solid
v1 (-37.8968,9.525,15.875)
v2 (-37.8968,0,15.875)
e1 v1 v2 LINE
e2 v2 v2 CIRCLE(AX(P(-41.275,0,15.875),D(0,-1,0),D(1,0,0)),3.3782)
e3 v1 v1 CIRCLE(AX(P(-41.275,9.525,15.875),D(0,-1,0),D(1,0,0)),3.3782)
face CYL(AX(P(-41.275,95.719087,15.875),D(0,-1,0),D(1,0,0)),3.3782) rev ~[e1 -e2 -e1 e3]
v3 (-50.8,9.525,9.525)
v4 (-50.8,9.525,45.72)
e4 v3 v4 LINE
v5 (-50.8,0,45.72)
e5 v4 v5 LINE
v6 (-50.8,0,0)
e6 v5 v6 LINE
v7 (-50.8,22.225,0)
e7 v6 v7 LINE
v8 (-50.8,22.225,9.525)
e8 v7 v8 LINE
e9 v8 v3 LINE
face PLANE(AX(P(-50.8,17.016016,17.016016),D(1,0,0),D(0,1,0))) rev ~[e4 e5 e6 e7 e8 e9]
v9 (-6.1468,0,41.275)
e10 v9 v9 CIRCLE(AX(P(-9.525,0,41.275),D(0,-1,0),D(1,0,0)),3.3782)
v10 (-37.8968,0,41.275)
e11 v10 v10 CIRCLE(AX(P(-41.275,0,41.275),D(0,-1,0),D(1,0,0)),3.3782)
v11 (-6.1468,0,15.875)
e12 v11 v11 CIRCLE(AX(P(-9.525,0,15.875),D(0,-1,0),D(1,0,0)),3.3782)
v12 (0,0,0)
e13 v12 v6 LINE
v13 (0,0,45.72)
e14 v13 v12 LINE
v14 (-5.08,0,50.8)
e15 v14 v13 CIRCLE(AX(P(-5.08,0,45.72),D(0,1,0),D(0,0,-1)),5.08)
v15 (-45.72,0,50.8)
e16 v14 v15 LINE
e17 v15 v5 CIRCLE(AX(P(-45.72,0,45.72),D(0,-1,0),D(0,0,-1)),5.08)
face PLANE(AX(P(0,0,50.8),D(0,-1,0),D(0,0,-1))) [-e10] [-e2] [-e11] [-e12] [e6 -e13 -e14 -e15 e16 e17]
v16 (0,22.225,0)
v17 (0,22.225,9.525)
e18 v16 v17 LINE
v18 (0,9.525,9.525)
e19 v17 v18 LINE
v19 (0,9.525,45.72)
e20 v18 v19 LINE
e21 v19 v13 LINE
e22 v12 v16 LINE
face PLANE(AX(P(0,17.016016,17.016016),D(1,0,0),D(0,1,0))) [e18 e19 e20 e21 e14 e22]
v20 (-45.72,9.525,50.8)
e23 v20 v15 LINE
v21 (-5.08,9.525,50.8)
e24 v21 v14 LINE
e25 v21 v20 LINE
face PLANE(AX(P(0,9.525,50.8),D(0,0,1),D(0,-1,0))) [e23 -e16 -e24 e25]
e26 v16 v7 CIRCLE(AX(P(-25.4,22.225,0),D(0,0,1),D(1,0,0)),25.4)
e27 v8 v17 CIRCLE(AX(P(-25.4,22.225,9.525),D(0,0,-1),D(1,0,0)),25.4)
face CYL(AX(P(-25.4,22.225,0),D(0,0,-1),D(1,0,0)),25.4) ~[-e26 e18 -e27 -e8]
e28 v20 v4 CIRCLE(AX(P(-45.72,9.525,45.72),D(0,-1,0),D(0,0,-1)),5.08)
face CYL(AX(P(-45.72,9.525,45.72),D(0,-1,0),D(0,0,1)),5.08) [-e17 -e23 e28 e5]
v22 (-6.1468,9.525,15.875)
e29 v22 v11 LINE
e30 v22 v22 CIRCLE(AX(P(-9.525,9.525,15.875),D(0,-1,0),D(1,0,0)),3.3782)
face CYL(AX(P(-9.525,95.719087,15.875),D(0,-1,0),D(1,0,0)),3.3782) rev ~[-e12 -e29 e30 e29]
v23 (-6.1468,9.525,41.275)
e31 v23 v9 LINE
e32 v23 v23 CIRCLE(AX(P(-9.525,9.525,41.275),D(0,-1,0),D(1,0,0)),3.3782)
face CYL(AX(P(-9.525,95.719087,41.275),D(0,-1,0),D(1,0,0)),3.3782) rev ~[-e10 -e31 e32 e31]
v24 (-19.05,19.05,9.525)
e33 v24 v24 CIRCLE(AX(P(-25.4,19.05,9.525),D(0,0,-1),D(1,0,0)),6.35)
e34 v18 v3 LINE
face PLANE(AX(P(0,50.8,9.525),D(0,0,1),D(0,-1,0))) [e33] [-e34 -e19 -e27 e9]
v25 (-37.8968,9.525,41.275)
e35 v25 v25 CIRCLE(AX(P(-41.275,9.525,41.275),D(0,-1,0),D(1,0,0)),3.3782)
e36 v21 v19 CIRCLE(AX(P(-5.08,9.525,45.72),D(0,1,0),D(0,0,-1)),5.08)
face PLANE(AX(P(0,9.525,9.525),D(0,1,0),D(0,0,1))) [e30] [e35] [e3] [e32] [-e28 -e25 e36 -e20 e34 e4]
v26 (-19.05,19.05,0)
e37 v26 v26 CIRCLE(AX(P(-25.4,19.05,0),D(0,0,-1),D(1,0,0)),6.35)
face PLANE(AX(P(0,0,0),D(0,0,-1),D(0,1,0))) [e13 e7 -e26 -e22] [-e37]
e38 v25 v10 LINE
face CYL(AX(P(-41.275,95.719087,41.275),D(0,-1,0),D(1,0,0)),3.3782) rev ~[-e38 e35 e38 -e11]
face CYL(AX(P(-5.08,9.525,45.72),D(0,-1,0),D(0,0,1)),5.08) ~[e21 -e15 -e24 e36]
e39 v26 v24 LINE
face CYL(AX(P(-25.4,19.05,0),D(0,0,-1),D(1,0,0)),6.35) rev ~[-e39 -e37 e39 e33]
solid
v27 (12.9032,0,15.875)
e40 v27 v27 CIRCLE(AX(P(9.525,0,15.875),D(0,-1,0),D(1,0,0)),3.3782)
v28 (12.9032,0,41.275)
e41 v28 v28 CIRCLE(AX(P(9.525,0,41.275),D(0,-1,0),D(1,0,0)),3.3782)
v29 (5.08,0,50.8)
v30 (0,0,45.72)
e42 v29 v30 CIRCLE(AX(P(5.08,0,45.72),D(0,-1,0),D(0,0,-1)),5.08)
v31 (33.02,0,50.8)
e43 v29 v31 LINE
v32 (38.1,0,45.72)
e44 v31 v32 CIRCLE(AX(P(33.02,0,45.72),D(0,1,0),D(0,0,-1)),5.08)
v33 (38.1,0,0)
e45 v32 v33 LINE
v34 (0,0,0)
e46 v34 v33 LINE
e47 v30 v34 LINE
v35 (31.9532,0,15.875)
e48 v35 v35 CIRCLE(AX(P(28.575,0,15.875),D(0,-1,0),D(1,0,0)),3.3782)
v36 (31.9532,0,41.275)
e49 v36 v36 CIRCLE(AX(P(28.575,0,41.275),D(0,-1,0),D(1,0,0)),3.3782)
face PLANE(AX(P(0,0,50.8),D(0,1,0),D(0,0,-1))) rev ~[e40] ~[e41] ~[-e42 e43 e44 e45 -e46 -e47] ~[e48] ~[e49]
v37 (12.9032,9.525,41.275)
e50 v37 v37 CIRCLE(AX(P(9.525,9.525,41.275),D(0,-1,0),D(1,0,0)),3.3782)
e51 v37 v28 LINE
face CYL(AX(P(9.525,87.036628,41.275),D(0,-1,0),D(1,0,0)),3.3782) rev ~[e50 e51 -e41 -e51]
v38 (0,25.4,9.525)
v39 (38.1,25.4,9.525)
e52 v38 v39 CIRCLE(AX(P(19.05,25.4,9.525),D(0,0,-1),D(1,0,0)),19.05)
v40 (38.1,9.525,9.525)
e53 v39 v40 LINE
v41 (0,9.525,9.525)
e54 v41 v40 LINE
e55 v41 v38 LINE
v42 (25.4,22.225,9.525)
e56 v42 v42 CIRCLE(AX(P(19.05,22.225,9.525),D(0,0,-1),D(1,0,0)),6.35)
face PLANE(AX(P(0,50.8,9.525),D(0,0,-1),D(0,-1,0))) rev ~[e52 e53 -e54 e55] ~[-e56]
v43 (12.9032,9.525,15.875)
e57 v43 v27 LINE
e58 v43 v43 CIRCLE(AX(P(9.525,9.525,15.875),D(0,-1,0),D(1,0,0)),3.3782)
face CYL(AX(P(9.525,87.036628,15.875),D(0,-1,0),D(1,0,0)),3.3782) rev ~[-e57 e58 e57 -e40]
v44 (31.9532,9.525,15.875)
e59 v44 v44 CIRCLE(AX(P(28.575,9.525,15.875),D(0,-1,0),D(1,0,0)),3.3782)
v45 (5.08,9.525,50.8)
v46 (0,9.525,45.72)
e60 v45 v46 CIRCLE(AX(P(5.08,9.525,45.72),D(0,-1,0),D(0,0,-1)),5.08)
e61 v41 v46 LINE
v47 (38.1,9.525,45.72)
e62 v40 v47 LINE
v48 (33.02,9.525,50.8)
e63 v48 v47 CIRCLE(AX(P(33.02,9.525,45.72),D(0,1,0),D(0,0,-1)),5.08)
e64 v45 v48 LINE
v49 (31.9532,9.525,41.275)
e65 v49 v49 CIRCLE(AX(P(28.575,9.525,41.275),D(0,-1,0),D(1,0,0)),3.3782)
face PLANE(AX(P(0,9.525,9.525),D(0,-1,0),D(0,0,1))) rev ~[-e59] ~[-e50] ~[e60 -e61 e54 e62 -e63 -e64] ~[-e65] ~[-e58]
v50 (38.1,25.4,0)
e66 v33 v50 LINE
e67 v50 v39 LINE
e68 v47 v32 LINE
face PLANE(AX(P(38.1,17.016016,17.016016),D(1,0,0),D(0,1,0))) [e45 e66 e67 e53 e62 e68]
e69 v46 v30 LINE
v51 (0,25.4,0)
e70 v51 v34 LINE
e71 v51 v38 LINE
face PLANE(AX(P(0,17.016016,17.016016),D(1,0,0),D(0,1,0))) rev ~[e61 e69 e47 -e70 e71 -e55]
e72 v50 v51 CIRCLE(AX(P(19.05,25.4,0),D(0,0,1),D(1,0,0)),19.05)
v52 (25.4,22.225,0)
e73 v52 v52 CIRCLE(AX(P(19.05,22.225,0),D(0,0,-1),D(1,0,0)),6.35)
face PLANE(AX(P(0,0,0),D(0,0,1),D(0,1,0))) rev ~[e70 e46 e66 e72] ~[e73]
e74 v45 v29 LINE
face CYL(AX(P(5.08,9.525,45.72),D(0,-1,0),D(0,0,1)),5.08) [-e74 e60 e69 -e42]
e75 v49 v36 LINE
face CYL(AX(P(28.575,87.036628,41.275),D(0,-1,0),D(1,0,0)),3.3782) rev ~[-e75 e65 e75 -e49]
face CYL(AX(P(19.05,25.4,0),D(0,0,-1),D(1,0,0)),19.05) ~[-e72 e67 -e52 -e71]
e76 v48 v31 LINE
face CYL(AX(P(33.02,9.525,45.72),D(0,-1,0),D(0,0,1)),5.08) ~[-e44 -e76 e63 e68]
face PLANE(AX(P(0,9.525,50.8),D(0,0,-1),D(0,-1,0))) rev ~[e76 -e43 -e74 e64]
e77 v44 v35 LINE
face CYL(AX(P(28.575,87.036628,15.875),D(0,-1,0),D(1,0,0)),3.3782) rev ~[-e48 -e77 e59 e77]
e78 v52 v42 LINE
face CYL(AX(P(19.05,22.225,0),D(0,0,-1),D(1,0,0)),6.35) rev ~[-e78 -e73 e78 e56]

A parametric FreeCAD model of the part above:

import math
import FreeCAD as App
import Part
import Sketcher
Q = App.Units.Quantity


def edges_at(feature, points):
    """Names of the edges that pass closest to the given points."""
    edges = feature.Shape.Edges
    near = lambda p: min(range(len(edges)), key=lambda i: edges[i].distToShape(Part.Vertex(*p))[0])
    return sorted({f"Edge{near(p) + 1}" for p in points})


def add_polygon(sketch, points):
    """Adds a closed chain of lines whose ends are joined by coincident constraints."""
    first, n = sketch.GeometryCount, len(points)
    for a, b in zip(points, points[1:] + points[:1]):
        sketch.addGeometry(Part.LineSegment(App.Vector(*a, 0), App.Vector(*b, 0)), False)
    for i in range(n):
        sketch.addConstraint(Sketcher.Constraint("Coincident", first + i, 2, first + (i + 1) % n, 1))

doc = App.newDocument("Part")
params = doc.addObject("Spreadsheet::Sheet", "Params")
for row, (alias, value) in enumerate([
    ("sketch1_width", "2 in"),
    ("sketch1_width2", "0.375 in"),
    ("pad1_length", "1.5 in"),
    ("sketch2_width", "2 in"),
    ("sketch2_width2", "0.375 in"),
    ("pad2_length", "2 in"),
    ("sketch3_radius", "1 in"),
    ("sketch3_diameter", "0.5 in"),
    ("sketch3_height", "1 in"),
    ("sketch3_radius2", "0.75 in"),
    ("sketch3_height2", "0.125 in"),
    ("pad3_length", "1 in"),
    ("sketch4_diameter", "0.266 in"),
    ("hole_diameter", "0.266 in"),
    ("fillet_radius", "0.2 in"),
    ("sketch5_diameter", "0.266 in"),
    ("hole2_diameter", "0.266 in"),
    ("fillet2_radius", "0.2 in"),
], start=1):
    params.set(f"A{row}", alias)
    params.set(f"B{row}", "=" + value)
    params.setAlias(f"B{row}", alias)

body = doc.addObject("PartDesign::Body", "Body")

# Sketch on YZ plane
sketch1 = body.newObject("Sketcher::SketchObject", "Sketch")
sketch1.AttachmentSupport = (doc.getObject("YZ_Plane"), [""])
sketch1.MapMode = "FlatFace"
add_polygon(sketch1, [(10, 51), (0, 51), (0, 0), (51, 0), (51, 10), (10, 10)])  # lines 0-5
sketch1.addConstraint([
    Sketcher.Constraint("Horizontal", 0),
    Sketcher.Constraint("Vertical", 1),
    Sketcher.Constraint("Horizontal", 2),
    Sketcher.Constraint("Vertical", 3),
    Sketcher.Constraint("Horizontal", 4),
    Sketcher.Constraint("Vertical", 5),
    Sketcher.Constraint("Coincident", 1, 2, -1, 1),
    Sketcher.Constraint("Equal", 2, 1),
    Sketcher.Constraint("Equal", 0, 3),
    Sketcher.Constraint("DistanceX", 2, 1, 2, 2, Q("2 in")),
    Sketcher.Constraint("DistanceX", 0, 2, 0, 1, Q("0.375 in")),
])
sketch1.setExpression("Constraints[15]", "Params.sketch1_width")
sketch1.setExpression("Constraints[16]", "Params.sketch1_width2")
pad1 = body.newObject("PartDesign::Pad", "Pad")
pad1.Profile = sketch1
pad1.setExpression("Length", "Params.pad1_length")
body2 = doc.addObject("PartDesign::Body", "Body001")

# Sketch on YZ plane
sketch2 = body2.newObject("Sketcher::SketchObject", "Sketch001")
sketch2.AttachmentSupport = (doc.getObject("YZ_Plane001"), [""])
sketch2.MapMode = "FlatFace"
add_polygon(sketch2, [(10, 51), (0, 51), (0, 0), (51, 0), (51, 10), (10, 10)])  # lines 0-5
sketch2.addConstraint([
    Sketcher.Constraint("Horizontal", 0),
    Sketcher.Constraint("Vertical", 1),
    Sketcher.Constraint("Horizontal", 2),
    Sketcher.Constraint("Vertical", 3),
    Sketcher.Constraint("Horizontal", 4),
    Sketcher.Constraint("Vertical", 5),
    Sketcher.Constraint("Coincident", 1, 2, -1, 1),
    Sketcher.Constraint("Equal", 2, 1),
    Sketcher.Constraint("Equal", 0, 3),
    Sketcher.Constraint("DistanceX", 2, 1, 2, 2, Q("2 in")),
    Sketcher.Constraint("DistanceX", 0, 2, 0, 1, Q("0.375 in")),
])
sketch2.setExpression("Constraints[15]", "Params.sketch2_width")
sketch2.setExpression("Constraints[16]", "Params.sketch2_width2")
pad2 = body2.newObject("PartDesign::Pad", "Pad001")
pad2.Profile = sketch2
pad2.setExpression("Length", "Params.pad2_length")
pad2.Reversed = True
body3 = doc.addObject("PartDesign::Body", "Body002")
body3.AllowCompound = True

# Sketch on XY plane
sketch3 = body3.newObject("Sketcher::SketchObject", "Sketch002")
sketch3.AttachmentSupport = (doc.getObject("XY_Plane002"), [""])
sketch3.MapMode = "FlatFace"
sketch3.addGeometry([
    Part.Circle(App.Vector(19.1, 22.2, 0), App.Vector(0, 0, 1), 6.3),  # 0
    Part.LineSegment(App.Vector(38.1, 50.8, 0), App.Vector(38.1, 25.4, 0)),  # 1
    Part.ArcOfCircle(Part.Circle(App.Vector(19.1, 25.4, 0), App.Vector(0, 0, 1), 19.1), math.radians(0), math.radians(180)),  # 2
    Part.LineSegment(App.Vector(0, 25.4, 0), App.Vector(0, 22.2, 0)),  # 3
    Part.ArcOfCircle(Part.Circle(App.Vector(-25.4, 22.2, 0), App.Vector(0, 0, 1), 25.4), math.radians(0), math.radians(180)),  # 4
    Part.LineSegment(App.Vector(-50.8, 22.2, 0), App.Vector(-50.8, 50.8, 0)),  # 5
    Part.LineSegment(App.Vector(-50.8, 50.8, 0), App.Vector(38.1, 50.8, 0)),  # 6
    Part.Circle(App.Vector(-25.4, 19.1, 0), App.Vector(0, 0, 1), 6.3),  # 7
], False)
sketch3.addConstraint([
    Sketcher.Constraint("Tangent", 1, 2, 2, 1),
    Sketcher.Constraint("Tangent", 2, 2, 3, 1),
    Sketcher.Constraint("Tangent", 3, 2, 4, 1),
    Sketcher.Constraint("Tangent", 4, 2, 5, 1),
    Sketcher.Constraint("Coincident", 5, 2, 6, 1),
    Sketcher.Constraint("Coincident", 6, 2, 1, 1),
    Sketcher.Constraint("Vertical", 1),
    Sketcher.Constraint("Vertical", 3),
    Sketcher.Constraint("Vertical", 5),
    Sketcher.Constraint("Horizontal", 6),
    Sketcher.Constraint("Equal", 0, 7),
    Sketcher.Constraint("PointOnObject", 2, 2, -2),
    Sketcher.Constraint("Horizontal", 0, 3, 4, 3),
    Sketcher.Constraint("Vertical", 0, 3, 2, 3),
    Sketcher.Constraint("Vertical", 4, 3, 7, 3),
    Sketcher.Constraint("Radius", 4, Q("1 in")),
    Sketcher.Constraint("Diameter", 0, Q("0.5 in")),
    Sketcher.Constraint("DistanceY", 1, 2, 1, 1, Q("1 in")),
    Sketcher.Constraint("Radius", 2, Q("0.75 in")),
    Sketcher.Constraint("DistanceY", -1, 1, 2, 3, Q("1 in")),
    Sketcher.Constraint("DistanceY", 3, 2, 3, 1, Q("0.125 in")),
    Sketcher.Constraint("DistanceY", -1, 1, 7, 3, Q("0.75 in")),
])
sketch3.setExpression("Constraints[15]", "Params.sketch3_radius")
sketch3.setExpression("Constraints[16]", "Params.sketch3_diameter")
sketch3.setExpression("Constraints[17]", "Params.sketch3_height")
sketch3.setExpression("Constraints[18]", "Params.sketch3_radius2")
sketch3.setExpression("Constraints[20]", "Params.sketch3_height2")
pad3 = body3.newObject("PartDesign::Pad", "Pad002")
pad3.Profile = sketch3
pad3.setExpression("Length", "Params.pad3_length")
doc.recompute()

body4 = doc.addObject("PartDesign::Body", "Body003")
body4.BaseFeature = body3
boolean = body.newObject("PartDesign::Boolean", "Boolean")
boolean.Type = "Cut"
boolean.addObjects([body4])
doc.recompute()

# Sketch on XZ plane
sketch4 = body.newObject("Sketcher::SketchObject", "Sketch003")
sketch4.AttachmentSupport = (doc.getObject("XZ_Plane"), [""])
sketch4.MapMode = "FlatFace"
sketch4.AttachmentOffset = App.Placement(App.Vector(0, 0, -0.375 * 25.4), App.Rotation())
sketch4.addGeometry([
    Part.Circle(App.Vector(28.6, 41.3, 0), App.Vector(0, 0, 1), 3.4),  # 0
    Part.Circle(App.Vector(9.5, 41.3, 0), App.Vector(0, 0, 1), 3.4),  # 1
    Part.Circle(App.Vector(9.5, 15.9, 0), App.Vector(0, 0, 1), 3.4),  # 2
    Part.Circle(App.Vector(28.6, 15.9, 0), App.Vector(0, 0, 1), 3.4),  # 3
    Part.Circle(App.Vector(-9.5, 41.3, 0), App.Vector(0, 0, 1), 3.4),  # 4
    Part.Circle(App.Vector(-9.5, 15.9, 0), App.Vector(0, 0, 1), 3.4),  # 5
    Part.Circle(App.Vector(-41.3, 15.9, 0), App.Vector(0, 0, 1), 3.4),  # 6
    Part.Circle(App.Vector(-41.3, 41.3, 0), App.Vector(0, 0, 1), 3.4),  # 7
], False)
sketch4.addConstraint([
    Sketcher.Constraint("Equal", 0, 1),
    Sketcher.Constraint("Equal", 1, 2),
    Sketcher.Constraint("Equal", 2, 3),
    Sketcher.Constraint("Equal", 3, 4),
    Sketcher.Constraint("Equal", 4, 5),
    Sketcher.Constraint("Equal", 5, 6),
    Sketcher.Constraint("Equal", 6, 7),
    Sketcher.Constraint("Symmetric", 1, 3, 4, 3, -2),
    Sketcher.Constraint("Symmetric", 2, 3, 5, 3, -2),
    Sketcher.Constraint("Horizontal", 0, 3, 1, 3),
    Sketcher.Constraint("Horizontal", 2, 3, 3, 3),
    Sketcher.Constraint("Horizontal", 5, 3, 6, 3),
    Sketcher.Constraint("Horizontal", 4, 3, 7, 3),
    Sketcher.Constraint("Vertical", 1, 3, 2, 3),
    Sketcher.Constraint("Vertical", 0, 3, 3, 3),
    Sketcher.Constraint("Vertical", 6, 3, 7, 3),
    Sketcher.Constraint("Diameter", 0, Q("0.266 in")),
    Sketcher.Constraint("DistanceY", 2, 3, 1, 3, Q("1 in")),
    Sketcher.Constraint("DistanceX", 6, 3, 2, 3, Q("2 in")),
    Sketcher.Constraint("DistanceX", 4, 3, 0, 3, Q("1.5 in")),
    Sketcher.Constraint("DistanceX", 1, 3, 0, 3, Q("0.75 in")),
    Sketcher.Constraint("DistanceY", -1, 1, 0, 3, Q("1.625 in")),
])
sketch4.setExpression("Constraints[16]", "Params.sketch4_diameter")
doc.recompute()
hole = body.newObject("PartDesign::Hole", "Hole")
hole.Profile = sketch4
hole.ThreadType = "None"
hole.setExpression("Diameter", "Params.hole_diameter")
hole.DepthType = "ThroughAll"
hole.Reversed = True
doc.recompute()

fillet = body.newObject("PartDesign::Fillet", "Fillet")
fillet.Base = (hole, edges_at(hole, [(38.1, 4.763, 50.8), (0, 4.763, 50.8)]))
fillet.setExpression("Radius", "Params.fillet_radius")
doc.recompute()

boolean2 = body2.newObject("PartDesign::Boolean", "Boolean001")
boolean2.Type = "Cut"
boolean2.addObjects([body3])

# Sketch on XZ plane
sketch5 = body2.newObject("Sketcher::SketchObject", "Sketch004")
sketch5.AttachmentSupport = (doc.getObject("XZ_Plane001"), [""])
sketch5.MapMode = "FlatFace"
sketch5.AttachmentOffset = App.Placement(App.Vector(0, 0, -0.375 * 25.4), App.Rotation())
sketch5.addGeometry([
    Part.Circle(App.Vector(28.6, 41.3, 0), App.Vector(0, 0, 1), 3.4),  # 0
    Part.Circle(App.Vector(9.5, 41.3, 0), App.Vector(0, 0, 1), 3.4),  # 1
    Part.Circle(App.Vector(9.5, 15.9, 0), App.Vector(0, 0, 1), 3.4),  # 2
    Part.Circle(App.Vector(28.6, 15.9, 0), App.Vector(0, 0, 1), 3.4),  # 3
    Part.Circle(App.Vector(-9.5, 41.3, 0), App.Vector(0, 0, 1), 3.4),  # 4
    Part.Circle(App.Vector(-9.5, 15.9, 0), App.Vector(0, 0, 1), 3.4),  # 5
    Part.Circle(App.Vector(-41.3, 15.9, 0), App.Vector(0, 0, 1), 3.4),  # 6
    Part.Circle(App.Vector(-41.3, 41.3, 0), App.Vector(0, 0, 1), 3.4),  # 7
], False)
sketch5.addConstraint([
    Sketcher.Constraint("Equal", 0, 1),
    Sketcher.Constraint("Equal", 1, 2),
    Sketcher.Constraint("Equal", 2, 3),
    Sketcher.Constraint("Equal", 3, 4),
    Sketcher.Constraint("Equal", 4, 5),
    Sketcher.Constraint("Equal", 5, 6),
    Sketcher.Constraint("Equal", 6, 7),
    Sketcher.Constraint("Symmetric", 1, 3, 4, 3, -2),
    Sketcher.Constraint("Symmetric", 2, 3, 5, 3, -2),
    Sketcher.Constraint("Horizontal", 0, 3, 1, 3),
    Sketcher.Constraint("Horizontal", 2, 3, 3, 3),
    Sketcher.Constraint("Horizontal", 5, 3, 6, 3),
    Sketcher.Constraint("Horizontal", 4, 3, 7, 3),
    Sketcher.Constraint("Vertical", 1, 3, 2, 3),
    Sketcher.Constraint("Vertical", 0, 3, 3, 3),
    Sketcher.Constraint("Vertical", 6, 3, 7, 3),
    Sketcher.Constraint("Diameter", 0, Q("0.266 in")),
    Sketcher.Constraint("DistanceY", 2, 3, 1, 3, Q("1 in")),
    Sketcher.Constraint("DistanceX", 6, 3, 2, 3, Q("2 in")),
    Sketcher.Constraint("DistanceX", 4, 3, 0, 3, Q("1.5 in")),
    Sketcher.Constraint("DistanceX", 1, 3, 0, 3, Q("0.75 in")),
    Sketcher.Constraint("DistanceY", -1, 1, 0, 3, Q("1.625 in")),
])
sketch5.setExpression("Constraints[16]", "Params.sketch5_diameter")
doc.recompute()
hole2 = body2.newObject("PartDesign::Hole", "Hole001")
hole2.Profile = sketch5
hole2.ThreadType = "None"
hole2.setExpression("Diameter", "Params.hole2_diameter")
hole2.DepthType = "ThroughAll"
hole2.Reversed = True
doc.recompute()

fillet2 = body2.newObject("PartDesign::Fillet", "Fillet001")
fillet2.Base = (hole2, edges_at(hole2, [(0, 4.763, 50.8), (-50.8, 4.763, 50.8)]))
fillet2.setExpression("Radius", "Params.fillet2_radius")

doc.recompute()
